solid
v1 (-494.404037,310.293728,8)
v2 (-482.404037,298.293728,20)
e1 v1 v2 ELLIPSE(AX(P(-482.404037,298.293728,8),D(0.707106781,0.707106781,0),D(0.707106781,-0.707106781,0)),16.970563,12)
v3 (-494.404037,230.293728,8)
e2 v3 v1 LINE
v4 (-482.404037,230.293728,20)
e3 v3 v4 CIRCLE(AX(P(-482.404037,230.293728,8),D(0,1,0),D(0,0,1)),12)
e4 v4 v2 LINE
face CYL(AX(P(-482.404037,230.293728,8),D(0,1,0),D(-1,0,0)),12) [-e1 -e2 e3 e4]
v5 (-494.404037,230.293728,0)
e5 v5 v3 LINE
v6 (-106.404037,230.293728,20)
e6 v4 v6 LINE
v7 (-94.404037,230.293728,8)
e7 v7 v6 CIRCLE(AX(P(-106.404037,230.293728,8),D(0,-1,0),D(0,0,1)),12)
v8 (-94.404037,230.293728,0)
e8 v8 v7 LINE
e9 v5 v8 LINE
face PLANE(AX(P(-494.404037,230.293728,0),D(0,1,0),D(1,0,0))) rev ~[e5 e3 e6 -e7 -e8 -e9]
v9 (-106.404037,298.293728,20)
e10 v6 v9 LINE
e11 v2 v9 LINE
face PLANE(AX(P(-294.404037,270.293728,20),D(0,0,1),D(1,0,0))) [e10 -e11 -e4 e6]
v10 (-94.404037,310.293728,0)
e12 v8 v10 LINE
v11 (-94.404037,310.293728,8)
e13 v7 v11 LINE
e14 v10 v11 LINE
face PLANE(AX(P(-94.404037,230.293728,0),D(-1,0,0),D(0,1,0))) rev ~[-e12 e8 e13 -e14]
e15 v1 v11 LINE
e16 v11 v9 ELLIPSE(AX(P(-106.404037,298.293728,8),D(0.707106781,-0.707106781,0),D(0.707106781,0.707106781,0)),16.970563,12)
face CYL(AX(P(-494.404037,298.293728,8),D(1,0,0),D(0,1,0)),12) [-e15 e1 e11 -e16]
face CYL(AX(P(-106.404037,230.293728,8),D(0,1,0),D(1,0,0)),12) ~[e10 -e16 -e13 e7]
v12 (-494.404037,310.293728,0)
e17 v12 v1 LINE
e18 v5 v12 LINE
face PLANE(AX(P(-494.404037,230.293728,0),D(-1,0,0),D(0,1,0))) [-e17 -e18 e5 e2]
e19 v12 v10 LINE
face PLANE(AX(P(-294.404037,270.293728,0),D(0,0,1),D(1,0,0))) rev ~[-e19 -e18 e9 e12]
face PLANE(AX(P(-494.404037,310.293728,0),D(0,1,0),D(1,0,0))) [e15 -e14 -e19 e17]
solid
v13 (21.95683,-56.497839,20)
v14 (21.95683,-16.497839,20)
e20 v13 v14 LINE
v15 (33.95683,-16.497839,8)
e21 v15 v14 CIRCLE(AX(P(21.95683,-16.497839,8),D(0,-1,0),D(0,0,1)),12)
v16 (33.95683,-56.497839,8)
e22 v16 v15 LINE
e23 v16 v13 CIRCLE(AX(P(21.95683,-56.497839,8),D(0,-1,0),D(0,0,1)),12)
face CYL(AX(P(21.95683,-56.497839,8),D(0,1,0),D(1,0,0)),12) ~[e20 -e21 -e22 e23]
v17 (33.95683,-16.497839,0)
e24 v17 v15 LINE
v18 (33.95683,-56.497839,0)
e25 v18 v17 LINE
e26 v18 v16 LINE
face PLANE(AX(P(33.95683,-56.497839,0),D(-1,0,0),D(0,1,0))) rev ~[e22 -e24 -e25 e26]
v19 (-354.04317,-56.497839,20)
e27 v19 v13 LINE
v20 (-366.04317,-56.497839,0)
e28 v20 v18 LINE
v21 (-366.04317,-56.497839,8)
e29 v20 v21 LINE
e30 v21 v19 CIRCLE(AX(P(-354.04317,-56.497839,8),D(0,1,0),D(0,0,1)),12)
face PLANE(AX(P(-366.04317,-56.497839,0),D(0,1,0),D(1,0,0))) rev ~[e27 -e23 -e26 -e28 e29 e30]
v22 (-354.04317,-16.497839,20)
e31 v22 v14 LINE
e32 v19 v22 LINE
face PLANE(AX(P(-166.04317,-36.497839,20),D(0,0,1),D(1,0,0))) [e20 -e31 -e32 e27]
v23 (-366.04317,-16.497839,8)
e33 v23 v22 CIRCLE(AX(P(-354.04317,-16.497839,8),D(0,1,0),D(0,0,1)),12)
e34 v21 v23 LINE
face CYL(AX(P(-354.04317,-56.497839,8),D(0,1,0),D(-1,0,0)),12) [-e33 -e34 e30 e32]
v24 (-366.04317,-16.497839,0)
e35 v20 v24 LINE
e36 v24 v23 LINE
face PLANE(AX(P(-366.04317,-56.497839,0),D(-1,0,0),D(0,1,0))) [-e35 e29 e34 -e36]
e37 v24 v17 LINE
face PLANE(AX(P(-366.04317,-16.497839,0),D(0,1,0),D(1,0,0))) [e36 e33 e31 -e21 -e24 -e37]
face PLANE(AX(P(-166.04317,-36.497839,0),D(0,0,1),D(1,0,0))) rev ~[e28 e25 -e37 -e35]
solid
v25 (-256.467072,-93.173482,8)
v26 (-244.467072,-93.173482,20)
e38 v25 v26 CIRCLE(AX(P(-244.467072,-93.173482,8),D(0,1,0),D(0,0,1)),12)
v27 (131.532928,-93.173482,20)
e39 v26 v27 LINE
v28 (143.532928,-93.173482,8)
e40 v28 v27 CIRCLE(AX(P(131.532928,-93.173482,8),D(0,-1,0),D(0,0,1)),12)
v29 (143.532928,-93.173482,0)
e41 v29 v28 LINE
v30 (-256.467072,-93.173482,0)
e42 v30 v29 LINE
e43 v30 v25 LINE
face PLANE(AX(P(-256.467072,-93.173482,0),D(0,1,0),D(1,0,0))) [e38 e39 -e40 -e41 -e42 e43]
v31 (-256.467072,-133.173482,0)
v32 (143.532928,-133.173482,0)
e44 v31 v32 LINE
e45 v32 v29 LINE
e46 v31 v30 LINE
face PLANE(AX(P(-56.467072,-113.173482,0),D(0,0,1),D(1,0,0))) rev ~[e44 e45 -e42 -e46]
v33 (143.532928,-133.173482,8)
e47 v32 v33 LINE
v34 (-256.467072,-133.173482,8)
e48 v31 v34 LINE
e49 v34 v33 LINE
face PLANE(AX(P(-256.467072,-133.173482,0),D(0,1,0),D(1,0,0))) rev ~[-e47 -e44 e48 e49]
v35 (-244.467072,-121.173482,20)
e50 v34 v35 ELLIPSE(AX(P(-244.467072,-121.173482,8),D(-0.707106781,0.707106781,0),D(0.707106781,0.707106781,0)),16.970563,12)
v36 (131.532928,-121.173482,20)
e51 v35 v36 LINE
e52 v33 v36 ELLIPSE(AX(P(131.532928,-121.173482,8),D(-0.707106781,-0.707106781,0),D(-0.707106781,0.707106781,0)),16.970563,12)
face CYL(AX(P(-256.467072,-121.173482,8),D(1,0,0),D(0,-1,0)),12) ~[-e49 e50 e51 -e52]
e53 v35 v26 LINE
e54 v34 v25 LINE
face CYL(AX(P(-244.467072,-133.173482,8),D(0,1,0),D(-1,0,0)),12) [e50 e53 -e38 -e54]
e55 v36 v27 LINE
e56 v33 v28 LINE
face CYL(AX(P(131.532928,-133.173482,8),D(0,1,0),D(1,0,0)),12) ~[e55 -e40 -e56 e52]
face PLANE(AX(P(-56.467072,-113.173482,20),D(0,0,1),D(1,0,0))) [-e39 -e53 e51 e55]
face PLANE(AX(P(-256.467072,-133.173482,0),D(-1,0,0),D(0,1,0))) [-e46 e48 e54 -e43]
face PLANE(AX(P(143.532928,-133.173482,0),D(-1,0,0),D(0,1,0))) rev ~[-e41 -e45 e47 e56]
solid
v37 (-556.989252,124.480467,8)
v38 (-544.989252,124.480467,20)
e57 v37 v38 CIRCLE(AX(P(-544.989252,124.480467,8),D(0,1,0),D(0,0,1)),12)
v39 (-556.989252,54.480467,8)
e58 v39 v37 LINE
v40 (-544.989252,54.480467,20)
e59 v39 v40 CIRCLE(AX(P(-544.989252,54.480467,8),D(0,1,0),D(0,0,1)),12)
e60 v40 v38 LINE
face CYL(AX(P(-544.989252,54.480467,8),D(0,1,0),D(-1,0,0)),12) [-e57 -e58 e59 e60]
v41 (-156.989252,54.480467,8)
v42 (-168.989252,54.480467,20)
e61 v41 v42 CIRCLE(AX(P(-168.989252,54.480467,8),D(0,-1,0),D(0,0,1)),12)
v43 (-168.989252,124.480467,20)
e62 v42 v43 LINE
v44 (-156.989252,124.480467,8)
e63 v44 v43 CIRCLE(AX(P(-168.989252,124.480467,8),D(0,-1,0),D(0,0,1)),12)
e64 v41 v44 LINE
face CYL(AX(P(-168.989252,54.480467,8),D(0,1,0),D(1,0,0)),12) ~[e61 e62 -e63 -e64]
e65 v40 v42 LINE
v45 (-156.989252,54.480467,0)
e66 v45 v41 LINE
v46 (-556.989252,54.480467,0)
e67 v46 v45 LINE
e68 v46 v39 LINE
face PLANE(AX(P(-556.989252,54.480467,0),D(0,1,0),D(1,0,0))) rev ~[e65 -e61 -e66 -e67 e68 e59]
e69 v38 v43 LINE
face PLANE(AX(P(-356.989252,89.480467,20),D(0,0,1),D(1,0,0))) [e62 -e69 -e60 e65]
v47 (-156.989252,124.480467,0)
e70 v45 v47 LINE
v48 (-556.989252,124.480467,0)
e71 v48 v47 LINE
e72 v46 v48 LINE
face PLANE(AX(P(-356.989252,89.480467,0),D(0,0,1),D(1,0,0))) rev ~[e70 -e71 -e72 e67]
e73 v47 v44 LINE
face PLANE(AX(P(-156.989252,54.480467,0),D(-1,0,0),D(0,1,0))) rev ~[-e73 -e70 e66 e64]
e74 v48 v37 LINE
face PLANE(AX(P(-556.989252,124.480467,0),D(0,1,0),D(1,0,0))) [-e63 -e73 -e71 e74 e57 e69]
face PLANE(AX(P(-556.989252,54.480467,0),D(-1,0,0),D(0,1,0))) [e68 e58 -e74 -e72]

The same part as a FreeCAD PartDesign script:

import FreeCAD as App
import Part
import Sketcher

V = App.Vector


def edges_at(feature, points):
    """Names of the edges that pass closest to the given points."""
    edges = feature.Shape.Edges
    near = lambda p: min(range(len(edges)), key=lambda i: edges[i].distToShape(Part.Vertex(*p))[0])
    return sorted({f"Edge{near(p) + 1}" for p in points})

doc = App.newDocument("Part")
body = doc.addObject("PartDesign::Body", "Body")

# Sketch on XY plane
sketch1 = body.newObject("Sketcher::SketchObject", "Sketch")
sketch1.AttachmentSupport = (doc.getObject("XY_Plane"), [""])
sketch1.MapMode = "FlatFace"
sketch1.addGeometry(Part.LineSegment(V(-256.467072, -93.173482, 0), V(-256.467072, -133.173482, 0)), False)
sketch1.addGeometry(Part.LineSegment(V(-256.467072, -133.173482, 0), V(143.532928, -133.173482, 0)), False)
sketch1.addGeometry(Part.LineSegment(V(143.532928, -133.173482, 0), V(143.532928, -93.173482, 0)), False)
sketch1.addGeometry(Part.LineSegment(V(143.532928, -93.173482, 0), V(-256.467072, -93.173482, 0)), False)
sketch1.addConstraint(Sketcher.Constraint("Coincident", 0, 2, 1, 1))
sketch1.addConstraint(Sketcher.Constraint("Coincident", 1, 2, 2, 1))
sketch1.addConstraint(Sketcher.Constraint("Coincident", 2, 2, 3, 1))
sketch1.addConstraint(Sketcher.Constraint("Coincident", 3, 2, 0, 1))
sketch1.addConstraint(Sketcher.Constraint("Vertical", 0))
sketch1.addConstraint(Sketcher.Constraint("Horizontal", 1))
sketch1.addConstraint(Sketcher.Constraint("Vertical", 2))
sketch1.addConstraint(Sketcher.Constraint("Horizontal", 3))
sketch1.addConstraint(Sketcher.Constraint("DistanceX", 1, 1, 1, 2, 400.0))
sketch1.addConstraint(Sketcher.Constraint("DistanceY", 0, 2, 0, 1, 40.0))
sketch1.addConstraint(Sketcher.Constraint("DistanceX", 0, 2, -1, 1, 256.467072))
sketch1.addConstraint(Sketcher.Constraint("DistanceY", 0, 2, -1, 1, 133.173482))
pad1 = body.newObject("PartDesign::Pad", "Pad")
pad1.Profile = sketch1
pad1.Length = 20
doc.recompute()

fillet = body.newObject("PartDesign::Fillet", "Fillet")
fillet.Base = (pad1, edges_at(pad1, [(-256.467, -113.173, 20), (143.533, -113.173, 20), (-56.467, -133.173, 20)]))
fillet.Radius = 12
body2 = doc.addObject("PartDesign::Body", "Body001")

# Sketch on XY plane
sketch2 = body2.newObject("Sketcher::SketchObject", "Sketch001")
sketch2.AttachmentSupport = (doc.getObject("XY_Plane001"), [""])
sketch2.MapMode = "FlatFace"
sketch2.addGeometry(Part.LineSegment(V(-366.04317, -16.497839, 0), V(-366.04317, -56.497839, 0)), False)
sketch2.addGeometry(Part.LineSegment(V(-366.04317, -56.497839, 0), V(33.95683, -56.497839, 0)), False)
sketch2.addGeometry(Part.LineSegment(V(33.95683, -56.497839, 0), V(33.95683, -16.497839, 0)), False)
sketch2.addGeometry(Part.LineSegment(V(33.95683, -16.497839, 0), V(-366.04317, -16.497839, 0)), False)
sketch2.addConstraint(Sketcher.Constraint("Coincident", 0, 2, 1, 1))
sketch2.addConstraint(Sketcher.Constraint("Coincident", 1, 2, 2, 1))
sketch2.addConstraint(Sketcher.Constraint("Coincident", 2, 2, 3, 1))
sketch2.addConstraint(Sketcher.Constraint("Coincident", 3, 2, 0, 1))
sketch2.addConstraint(Sketcher.Constraint("Vertical", 0))
sketch2.addConstraint(Sketcher.Constraint("Horizontal", 1))
sketch2.addConstraint(Sketcher.Constraint("Vertical", 2))
sketch2.addConstraint(Sketcher.Constraint("Horizontal", 3))
sketch2.addConstraint(Sketcher.Constraint("DistanceX", 1, 1, 1, 2, 400.0))
sketch2.addConstraint(Sketcher.Constraint("DistanceY", 0, 2, 0, 1, 40.0))
sketch2.addConstraint(Sketcher.Constraint("DistanceX", 0, 2, -1, 1, 366.04317))
sketch2.addConstraint(Sketcher.Constraint("DistanceY", 0, 2, -1, 1, 56.497839))
pad2 = body2.newObject("PartDesign::Pad", "Pad001")
pad2.Profile = sketch2
pad2.Length = 20
doc.recompute()

fillet2 = body2.newObject("PartDesign::Fillet", "Fillet001")
fillet2.Base = (pad2, edges_at(pad2, [(-366.043, -36.498, 20), (33.957, -36.498, 20)]))
fillet2.Radius = 12
body3 = doc.addObject("PartDesign::Body", "Body002")

# Sketch on XY plane
sketch3 = body3.newObject("Sketcher::SketchObject", "Sketch002")
sketch3.AttachmentSupport = (doc.getObject("XY_Plane002"), [""])
sketch3.MapMode = "FlatFace"
sketch3.addGeometry(Part.LineSegment(V(-556.989252, 124.480467, 0), V(-556.989252, 54.480467, 0)), False)
sketch3.addGeometry(Part.LineSegment(V(-556.989252, 54.480467, 0), V(-156.989252, 54.480467, 0)), False)
sketch3.addGeometry(Part.LineSegment(V(-156.989252, 54.480467, 0), V(-156.989252, 124.480467, 0)), False)
sketch3.addGeometry(Part.LineSegment(V(-156.989252, 124.480467, 0), V(-556.989252, 124.480467, 0)), False)
sketch3.addConstraint(Sketcher.Constraint("Coincident", 0, 2, 1, 1))
sketch3.addConstraint(Sketcher.Constraint("Coincident", 1, 2, 2, 1))
sketch3.addConstraint(Sketcher.Constraint("Coincident", 2, 2, 3, 1))
sketch3.addConstraint(Sketcher.Constraint("Coincident", 3, 2, 0, 1))
sketch3.addConstraint(Sketcher.Constraint("Vertical", 0))
sketch3.addConstraint(Sketcher.Constraint("Horizontal", 1))
sketch3.addConstraint(Sketcher.Constraint("Vertical", 2))
sketch3.addConstraint(Sketcher.Constraint("Horizontal", 3))
sketch3.addConstraint(Sketcher.Constraint("DistanceX", 1, 1, 1, 2, 400.0))
sketch3.addConstraint(Sketcher.Constraint("DistanceY", 0, 2, 0, 1, 70.0))
sketch3.addConstraint(Sketcher.Constraint("DistanceX", 0, 2, -1, 1, 556.989252))
sketch3.addConstraint(Sketcher.Constraint("DistanceY", -1, 1, 0, 2, 54.480467))
pad3 = body3.newObject("PartDesign::Pad", "Pad002")
pad3.Profile = sketch3
pad3.Length = 20
doc.recompute()

fillet3 = body3.newObject("PartDesign::Fillet", "Fillet002")
fillet3.Base = (pad3, edges_at(pad3, [(-556.989, 89.48, 20), (-156.989, 89.48, 20)]))
fillet3.Radius = 12
body4 = doc.addObject("PartDesign::Body", "Body003")

# Sketch on XY plane
sketch4 = body4.newObject("Sketcher::SketchObject", "Sketch003")
sketch4.AttachmentSupport = (doc.getObject("XY_Plane003"), [""])
sketch4.MapMode = "FlatFace"
sketch4.addGeometry(Part.LineSegment(V(-494.404037, 310.293728, 0), V(-494.404037, 230.293728, 0)), False)
sketch4.addGeometry(Part.LineSegment(V(-494.404037, 230.293728, 0), V(-94.404037, 230.293728, 0)), False)
sketch4.addGeometry(Part.LineSegment(V(-94.404037, 230.293728, 0), V(-94.404037, 310.293728, 0)), False)
sketch4.addGeometry(Part.LineSegment(V(-94.404037, 310.293728, 0), V(-494.404037, 310.293728, 0)), False)
sketch4.addConstraint(Sketcher.Constraint("Coincident", 0, 2, 1, 1))
sketch4.addConstraint(Sketcher.Constraint("Coincident", 1, 2, 2, 1))
sketch4.addConstraint(Sketcher.Constraint("Coincident", 2, 2, 3, 1))
sketch4.addConstraint(Sketcher.Constraint("Coincident", 3, 2, 0, 1))
sketch4.addConstraint(Sketcher.Constraint("Vertical", 0))
sketch4.addConstraint(Sketcher.Constraint("Horizontal", 1))
sketch4.addConstraint(Sketcher.Constraint("Vertical", 2))
sketch4.addConstraint(Sketcher.Constraint("Horizontal", 3))
sketch4.addConstraint(Sketcher.Constraint("DistanceX", 1, 1, 1, 2, 400.0))
sketch4.addConstraint(Sketcher.Constraint("DistanceY", 0, 2, 0, 1, 80.0))
sketch4.addConstraint(Sketcher.Constraint("DistanceY", -1, 1, 2, 2, 310.293728))
sketch4.addConstraint(Sketcher.Constraint("DistanceX", 0, 2, -1, 1, 494.404037))
pad4 = body4.newObject("PartDesign::Pad", "Pad003")
pad4.Profile = sketch4
pad4.Length = 20
doc.recompute()

fillet4 = body4.newObject("PartDesign::Fillet", "Fillet003")
fillet4.Base = (pad4, edges_at(pad4, [(-294.404, 310.294, 20), (-94.404, 270.294, 20), (-494.404, 270.294, 20)]))
fillet4.Radius = 12

doc.recompute()
